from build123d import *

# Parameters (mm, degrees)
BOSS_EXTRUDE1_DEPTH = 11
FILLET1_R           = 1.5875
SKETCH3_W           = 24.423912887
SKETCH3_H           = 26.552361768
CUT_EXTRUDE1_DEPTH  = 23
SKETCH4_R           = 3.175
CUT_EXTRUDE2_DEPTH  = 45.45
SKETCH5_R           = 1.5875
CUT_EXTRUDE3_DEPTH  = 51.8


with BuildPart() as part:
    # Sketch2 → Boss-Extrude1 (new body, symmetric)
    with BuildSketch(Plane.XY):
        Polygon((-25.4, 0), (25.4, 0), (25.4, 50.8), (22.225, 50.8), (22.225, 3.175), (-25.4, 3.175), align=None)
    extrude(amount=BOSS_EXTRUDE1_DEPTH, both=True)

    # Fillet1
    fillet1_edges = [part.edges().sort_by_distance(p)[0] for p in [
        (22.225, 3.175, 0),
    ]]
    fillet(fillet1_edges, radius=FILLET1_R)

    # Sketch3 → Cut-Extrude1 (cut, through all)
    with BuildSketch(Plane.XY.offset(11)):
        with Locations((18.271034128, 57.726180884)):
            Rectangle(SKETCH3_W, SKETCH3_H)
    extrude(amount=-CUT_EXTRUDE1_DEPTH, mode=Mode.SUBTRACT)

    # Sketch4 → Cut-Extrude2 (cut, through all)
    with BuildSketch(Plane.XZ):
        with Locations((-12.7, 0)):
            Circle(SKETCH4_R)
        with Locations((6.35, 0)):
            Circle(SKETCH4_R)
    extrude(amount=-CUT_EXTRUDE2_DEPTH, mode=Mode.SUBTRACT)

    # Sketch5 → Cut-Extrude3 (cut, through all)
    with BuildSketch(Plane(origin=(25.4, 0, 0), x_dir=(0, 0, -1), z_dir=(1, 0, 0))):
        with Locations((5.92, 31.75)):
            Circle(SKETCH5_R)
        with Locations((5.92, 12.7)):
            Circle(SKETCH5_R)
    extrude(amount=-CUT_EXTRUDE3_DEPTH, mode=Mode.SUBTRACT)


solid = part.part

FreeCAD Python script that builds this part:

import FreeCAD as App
import Part
import Sketcher
Q = App.Units.Quantity


def edges_at(feature, points):
    """Names of the edges that pass closest to the given points."""
    edges = feature.Shape.Edges
    near = lambda p: min(range(len(edges)), key=lambda i: edges[i].distToShape(Part.Vertex(*p))[0])
    return sorted({f"Edge{near(p) + 1}" for p in points})


def add_polygon(sketch, points):
    """Adds a closed chain of lines whose ends are joined by coincident constraints."""
    first, n = sketch.GeometryCount, len(points)
    for a, b in zip(points, points[1:] + points[:1]):
        sketch.addGeometry(Part.LineSegment(App.Vector(*a, 0), App.Vector(*b, 0)), False)
    for i in range(n):
        sketch.addConstraint(Sketcher.Constraint("Coincident", first + i, 2, first + (i + 1) % n, 1))

doc = App.newDocument("Part")
body = doc.addObject("PartDesign::Body", "Body")

sketch1 = body.newObject("Sketcher::SketchObject", "Sketch")
sketch1.AttachmentSupport = (doc.getObject("XY_Plane"), [""])
sketch1.MapMode = "FlatFace"
add_polygon(sketch1, [(-25.4, 0), (25.4, 0), (25.4, 50.8), (22.2, 50.8), (22.2, 3.2), (-25.4, 3.2)])
sketch1.addConstraint(Sketcher.Constraint("Horizontal", 0))
sketch1.addConstraint(Sketcher.Constraint("Vertical", 1))
sketch1.addConstraint(Sketcher.Constraint("Horizontal", 2))
sketch1.addConstraint(Sketcher.Constraint("Vertical", 3))
sketch1.addConstraint(Sketcher.Constraint("Horizontal", 4))
sketch1.addConstraint(Sketcher.Constraint("Vertical", 5))
sketch1.addConstraint(Sketcher.Constraint("Symmetric", 0, 2, 5, 2, -1, 1))
sketch1.addConstraint(Sketcher.Constraint("Equal", 0, 1))
sketch1.addConstraint(Sketcher.Constraint("Equal", 4, 3))
sketch1.addConstraint(Sketcher.Constraint("DistanceX", 0, 1, 0, 2, Q("2 in")))
sketch1.addConstraint(Sketcher.Constraint("DistanceX", 2, 2, 2, 1, Q("0.125 in")))
pad1 = body.newObject("PartDesign::Pad", "Pad")
pad1.Profile = sketch1
pad1.Length = 22
pad1.Midplane = True
doc.recompute()

fillet = body.newObject("PartDesign::Fillet", "Fillet")
fillet.Base = (pad1, edges_at(pad1, [(22.225, 3.175, 0)]))
fillet.Radius = Q("0.0625 in")

sketch2 = body.newObject("Sketcher::SketchObject", "Sketch001")
sketch2.AttachmentSupport = (doc.getObject("XY_Plane"), [""])
sketch2.MapMode = "FlatFace"
sketch2.AttachmentOffset = App.Placement(App.Vector(0, 0, 11), App.Rotation())
add_polygon(sketch2, [(6, 71), (6, 44), (30, 44), (30, 71)])
sketch2.addConstraint(Sketcher.Constraint("Vertical", 0))
sketch2.addConstraint(Sketcher.Constraint("Horizontal", 1))
sketch2.addConstraint(Sketcher.Constraint("Vertical", 2))
sketch2.addConstraint(Sketcher.Constraint("Horizontal", 3))
sketch2.addConstraint(Sketcher.Constraint("DistanceY", -1, 1, 0, 2, Q("1.75 in")))
sketch2.addConstraint(Sketcher.Constraint("DistanceY", 0, 2, 0, 1, Q("26.552362 mm")))
sketch2.addConstraint(Sketcher.Constraint("DistanceX", 1, 1, 1, 2, Q("24.423913 mm")))
sketch2.addConstraint(Sketcher.Constraint("DistanceX", -1, 1, 1, 2, Q("30.482991 mm")))
pocket1 = body.newObject("PartDesign::Pocket", "Pocket")
pocket1.Profile = sketch2
pocket1.Type = "ThroughAll"

sketch3 = body.newObject("Sketcher::SketchObject", "Sketch002")
sketch3.AttachmentSupport = (doc.getObject("XZ_Plane"), [""])
sketch3.MapMode = "FlatFace"
sketch3.addGeometry(Part.Circle(App.Vector(-12.7, 0, 0), App.Vector(0, 0, 1), 3.2), False)
sketch3.addGeometry(Part.Circle(App.Vector(6.3, 0, 0), App.Vector(0, 0, 1), 3.2), False)
sketch3.addConstraint(Sketcher.Constraint("Equal", 0, 1))
sketch3.addConstraint(Sketcher.Constraint("PointOnObject", 0, 3, -1))
sketch3.addConstraint(Sketcher.Constraint("PointOnObject", 1, 3, -1))
sketch3.addConstraint(Sketcher.Constraint("Diameter", 0, Q("0.25 in")))
sketch3.addConstraint(Sketcher.Constraint("DistanceX", 0, 3, -1, 1, Q("0.5 in")))
sketch3.addConstraint(Sketcher.Constraint("DistanceX", -1, 1, 1, 3, Q("0.25 in")))
pocket2 = body.newObject("PartDesign::Pocket", "Pocket001")
pocket2.Profile = sketch3
pocket2.Type = "ThroughAll"

sketch4 = body.newObject("Sketcher::SketchObject", "Sketch003")
sketch4.AttachmentSupport = (doc.getObject("YZ_Plane"), [""])
sketch4.MapMode = "FlatFace"
sketch4.AttachmentOffset = App.Placement(App.Vector(0, 0, 1 * 25.4), App.Rotation())
sketch4.addGeometry(Part.Circle(App.Vector(31.8, -5.9, 0), App.Vector(0, 0, 1), 1.6), False)
sketch4.addGeometry(Part.Circle(App.Vector(12.7, -5.9, 0), App.Vector(0, 0, 1), 1.6), False)
sketch4.addConstraint(Sketcher.Constraint("Equal", 0, 1))
sketch4.addConstraint(Sketcher.Constraint("Horizontal", 0, 3, 1, 3))
sketch4.addConstraint(Sketcher.Constraint("Diameter", 0, Q("0.125 in")))
sketch4.addConstraint(Sketcher.Constraint("DistanceX", -1, 1, 1, 3, Q("0.5 in")))
sketch4.addConstraint(Sketcher.Constraint("DistanceX", -1, 1, 0, 3, Q("1.25 in")))
sketch4.addConstraint(Sketcher.Constraint("DistanceY", 0, 3, -1, 1, Q("5.92 mm")))
pocket3 = body.newObject("PartDesign::Pocket", "Pocket002")
pocket3.Profile = sketch4
pocket3.Type = "ThroughAll"

doc.recompute()
